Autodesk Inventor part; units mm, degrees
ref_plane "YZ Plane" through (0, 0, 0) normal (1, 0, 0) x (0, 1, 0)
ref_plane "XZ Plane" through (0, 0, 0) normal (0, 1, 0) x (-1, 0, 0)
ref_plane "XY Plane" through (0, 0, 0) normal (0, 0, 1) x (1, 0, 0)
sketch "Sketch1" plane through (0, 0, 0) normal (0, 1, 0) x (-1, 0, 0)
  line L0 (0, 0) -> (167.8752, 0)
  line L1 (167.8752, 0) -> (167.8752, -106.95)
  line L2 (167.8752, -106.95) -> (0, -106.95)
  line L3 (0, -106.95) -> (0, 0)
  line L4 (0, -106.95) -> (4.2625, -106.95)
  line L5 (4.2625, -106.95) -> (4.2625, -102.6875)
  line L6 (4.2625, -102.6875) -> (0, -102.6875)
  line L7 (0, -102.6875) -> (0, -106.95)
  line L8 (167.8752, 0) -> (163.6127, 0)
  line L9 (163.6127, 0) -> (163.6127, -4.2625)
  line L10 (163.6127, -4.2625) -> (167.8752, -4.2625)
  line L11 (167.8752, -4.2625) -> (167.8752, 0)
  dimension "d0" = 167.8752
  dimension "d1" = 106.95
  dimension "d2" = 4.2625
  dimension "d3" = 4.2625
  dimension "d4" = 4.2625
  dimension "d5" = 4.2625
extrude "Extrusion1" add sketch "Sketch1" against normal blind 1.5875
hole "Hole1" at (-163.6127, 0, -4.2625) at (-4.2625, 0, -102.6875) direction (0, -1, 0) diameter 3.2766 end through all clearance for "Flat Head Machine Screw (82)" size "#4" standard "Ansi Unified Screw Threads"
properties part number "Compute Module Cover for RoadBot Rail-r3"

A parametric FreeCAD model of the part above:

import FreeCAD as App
import Part
import Sketcher
Q = App.Units.Quantity

doc = App.newDocument("Part")
body = doc.addObject("PartDesign::Body", "Body")

# Sketch on XZ plane
sketch1 = body.newObject("Sketcher::SketchObject", "Sketch")
sketch1.AttachmentSupport = (doc.getObject("XZ_Plane"), [""])
sketch1.MapMode = "FlatFace"
sketch1.addGeometry(Part.LineSegment(App.Vector(0, 0, 0), App.Vector(0, -107, 0)), False)
sketch1.addGeometry(Part.LineSegment(App.Vector(0, -107, 0), App.Vector(-168, -107, 0)), False)
sketch1.addGeometry(Part.LineSegment(App.Vector(-168, -107, 0), App.Vector(-168, 0, 0)), False)
sketch1.addGeometry(Part.LineSegment(App.Vector(-168, 0, 0), App.Vector(0, 0, 0)), False)
sketch1.addConstraint(Sketcher.Constraint("Coincident", 0, 2, 1, 1))
sketch1.addConstraint(Sketcher.Constraint("Coincident", 1, 2, 2, 1))
sketch1.addConstraint(Sketcher.Constraint("Coincident", 2, 2, 3, 1))
sketch1.addConstraint(Sketcher.Constraint("Coincident", 3, 2, 0, 1))
sketch1.addConstraint(Sketcher.Constraint("Vertical", 0))
sketch1.addConstraint(Sketcher.Constraint("Horizontal", 1))
sketch1.addConstraint(Sketcher.Constraint("Vertical", 2))
sketch1.addConstraint(Sketcher.Constraint("Horizontal", 3))
sketch1.addConstraint(Sketcher.Constraint("Coincident", 3, 2, -1, 1))
sketch1.addConstraint(Sketcher.Constraint("DistanceX", 1, 2, 1, 1, Q("167.8752 mm")))
sketch1.addConstraint(Sketcher.Constraint("DistanceY", 0, 2, 0, 1, Q("106.95 mm")))
pad1 = body.newObject("PartDesign::Pad", "Pad")
pad1.Profile = sketch1
pad1.Length = Q("0.0625 in")

# Sketch on XZ plane
sketch2 = body.newObject("Sketcher::SketchObject", "Sketch001")
sketch2.AttachmentSupport = (doc.getObject("XZ_Plane"), [""])
sketch2.MapMode = "FlatFace"
sketch2.addGeometry(Part.Circle(App.Vector(-163.6, -4.3, 0), App.Vector(0, 0, 1), 1.6), False)
sketch2.addGeometry(Part.Circle(App.Vector(-4.3, -102.7, 0), App.Vector(0, 0, 1), 1.6), False)
sketch2.addConstraint(Sketcher.Constraint("Equal", 0, 1))
sketch2.addConstraint(Sketcher.Constraint("Diameter", 0, Q("0.129 in")))
sketch2.addConstraint(Sketcher.Constraint("DistanceY", 1, 3, 0, 3, Q("3.875 in")))
sketch2.addConstraint(Sketcher.Constraint("DistanceX", 0, 3, -1, 1, Q("163.6127 mm")))
sketch2.addConstraint(Sketcher.Constraint("DistanceY", 0, 3, -1, 1, Q("4.2625 mm")))
sketch2.addConstraint(Sketcher.Constraint("DistanceX", 1, 3, -1, 1, Q("4.2625 mm")))
doc.recompute()
hole = body.newObject("PartDesign::Hole", "Hole")
hole.Profile = sketch2
hole.ThreadType = "None"
hole.Diameter = Q("0.129 in")
hole.DepthType = "ThroughAll"
hole.Reversed = True

doc.recompute()
